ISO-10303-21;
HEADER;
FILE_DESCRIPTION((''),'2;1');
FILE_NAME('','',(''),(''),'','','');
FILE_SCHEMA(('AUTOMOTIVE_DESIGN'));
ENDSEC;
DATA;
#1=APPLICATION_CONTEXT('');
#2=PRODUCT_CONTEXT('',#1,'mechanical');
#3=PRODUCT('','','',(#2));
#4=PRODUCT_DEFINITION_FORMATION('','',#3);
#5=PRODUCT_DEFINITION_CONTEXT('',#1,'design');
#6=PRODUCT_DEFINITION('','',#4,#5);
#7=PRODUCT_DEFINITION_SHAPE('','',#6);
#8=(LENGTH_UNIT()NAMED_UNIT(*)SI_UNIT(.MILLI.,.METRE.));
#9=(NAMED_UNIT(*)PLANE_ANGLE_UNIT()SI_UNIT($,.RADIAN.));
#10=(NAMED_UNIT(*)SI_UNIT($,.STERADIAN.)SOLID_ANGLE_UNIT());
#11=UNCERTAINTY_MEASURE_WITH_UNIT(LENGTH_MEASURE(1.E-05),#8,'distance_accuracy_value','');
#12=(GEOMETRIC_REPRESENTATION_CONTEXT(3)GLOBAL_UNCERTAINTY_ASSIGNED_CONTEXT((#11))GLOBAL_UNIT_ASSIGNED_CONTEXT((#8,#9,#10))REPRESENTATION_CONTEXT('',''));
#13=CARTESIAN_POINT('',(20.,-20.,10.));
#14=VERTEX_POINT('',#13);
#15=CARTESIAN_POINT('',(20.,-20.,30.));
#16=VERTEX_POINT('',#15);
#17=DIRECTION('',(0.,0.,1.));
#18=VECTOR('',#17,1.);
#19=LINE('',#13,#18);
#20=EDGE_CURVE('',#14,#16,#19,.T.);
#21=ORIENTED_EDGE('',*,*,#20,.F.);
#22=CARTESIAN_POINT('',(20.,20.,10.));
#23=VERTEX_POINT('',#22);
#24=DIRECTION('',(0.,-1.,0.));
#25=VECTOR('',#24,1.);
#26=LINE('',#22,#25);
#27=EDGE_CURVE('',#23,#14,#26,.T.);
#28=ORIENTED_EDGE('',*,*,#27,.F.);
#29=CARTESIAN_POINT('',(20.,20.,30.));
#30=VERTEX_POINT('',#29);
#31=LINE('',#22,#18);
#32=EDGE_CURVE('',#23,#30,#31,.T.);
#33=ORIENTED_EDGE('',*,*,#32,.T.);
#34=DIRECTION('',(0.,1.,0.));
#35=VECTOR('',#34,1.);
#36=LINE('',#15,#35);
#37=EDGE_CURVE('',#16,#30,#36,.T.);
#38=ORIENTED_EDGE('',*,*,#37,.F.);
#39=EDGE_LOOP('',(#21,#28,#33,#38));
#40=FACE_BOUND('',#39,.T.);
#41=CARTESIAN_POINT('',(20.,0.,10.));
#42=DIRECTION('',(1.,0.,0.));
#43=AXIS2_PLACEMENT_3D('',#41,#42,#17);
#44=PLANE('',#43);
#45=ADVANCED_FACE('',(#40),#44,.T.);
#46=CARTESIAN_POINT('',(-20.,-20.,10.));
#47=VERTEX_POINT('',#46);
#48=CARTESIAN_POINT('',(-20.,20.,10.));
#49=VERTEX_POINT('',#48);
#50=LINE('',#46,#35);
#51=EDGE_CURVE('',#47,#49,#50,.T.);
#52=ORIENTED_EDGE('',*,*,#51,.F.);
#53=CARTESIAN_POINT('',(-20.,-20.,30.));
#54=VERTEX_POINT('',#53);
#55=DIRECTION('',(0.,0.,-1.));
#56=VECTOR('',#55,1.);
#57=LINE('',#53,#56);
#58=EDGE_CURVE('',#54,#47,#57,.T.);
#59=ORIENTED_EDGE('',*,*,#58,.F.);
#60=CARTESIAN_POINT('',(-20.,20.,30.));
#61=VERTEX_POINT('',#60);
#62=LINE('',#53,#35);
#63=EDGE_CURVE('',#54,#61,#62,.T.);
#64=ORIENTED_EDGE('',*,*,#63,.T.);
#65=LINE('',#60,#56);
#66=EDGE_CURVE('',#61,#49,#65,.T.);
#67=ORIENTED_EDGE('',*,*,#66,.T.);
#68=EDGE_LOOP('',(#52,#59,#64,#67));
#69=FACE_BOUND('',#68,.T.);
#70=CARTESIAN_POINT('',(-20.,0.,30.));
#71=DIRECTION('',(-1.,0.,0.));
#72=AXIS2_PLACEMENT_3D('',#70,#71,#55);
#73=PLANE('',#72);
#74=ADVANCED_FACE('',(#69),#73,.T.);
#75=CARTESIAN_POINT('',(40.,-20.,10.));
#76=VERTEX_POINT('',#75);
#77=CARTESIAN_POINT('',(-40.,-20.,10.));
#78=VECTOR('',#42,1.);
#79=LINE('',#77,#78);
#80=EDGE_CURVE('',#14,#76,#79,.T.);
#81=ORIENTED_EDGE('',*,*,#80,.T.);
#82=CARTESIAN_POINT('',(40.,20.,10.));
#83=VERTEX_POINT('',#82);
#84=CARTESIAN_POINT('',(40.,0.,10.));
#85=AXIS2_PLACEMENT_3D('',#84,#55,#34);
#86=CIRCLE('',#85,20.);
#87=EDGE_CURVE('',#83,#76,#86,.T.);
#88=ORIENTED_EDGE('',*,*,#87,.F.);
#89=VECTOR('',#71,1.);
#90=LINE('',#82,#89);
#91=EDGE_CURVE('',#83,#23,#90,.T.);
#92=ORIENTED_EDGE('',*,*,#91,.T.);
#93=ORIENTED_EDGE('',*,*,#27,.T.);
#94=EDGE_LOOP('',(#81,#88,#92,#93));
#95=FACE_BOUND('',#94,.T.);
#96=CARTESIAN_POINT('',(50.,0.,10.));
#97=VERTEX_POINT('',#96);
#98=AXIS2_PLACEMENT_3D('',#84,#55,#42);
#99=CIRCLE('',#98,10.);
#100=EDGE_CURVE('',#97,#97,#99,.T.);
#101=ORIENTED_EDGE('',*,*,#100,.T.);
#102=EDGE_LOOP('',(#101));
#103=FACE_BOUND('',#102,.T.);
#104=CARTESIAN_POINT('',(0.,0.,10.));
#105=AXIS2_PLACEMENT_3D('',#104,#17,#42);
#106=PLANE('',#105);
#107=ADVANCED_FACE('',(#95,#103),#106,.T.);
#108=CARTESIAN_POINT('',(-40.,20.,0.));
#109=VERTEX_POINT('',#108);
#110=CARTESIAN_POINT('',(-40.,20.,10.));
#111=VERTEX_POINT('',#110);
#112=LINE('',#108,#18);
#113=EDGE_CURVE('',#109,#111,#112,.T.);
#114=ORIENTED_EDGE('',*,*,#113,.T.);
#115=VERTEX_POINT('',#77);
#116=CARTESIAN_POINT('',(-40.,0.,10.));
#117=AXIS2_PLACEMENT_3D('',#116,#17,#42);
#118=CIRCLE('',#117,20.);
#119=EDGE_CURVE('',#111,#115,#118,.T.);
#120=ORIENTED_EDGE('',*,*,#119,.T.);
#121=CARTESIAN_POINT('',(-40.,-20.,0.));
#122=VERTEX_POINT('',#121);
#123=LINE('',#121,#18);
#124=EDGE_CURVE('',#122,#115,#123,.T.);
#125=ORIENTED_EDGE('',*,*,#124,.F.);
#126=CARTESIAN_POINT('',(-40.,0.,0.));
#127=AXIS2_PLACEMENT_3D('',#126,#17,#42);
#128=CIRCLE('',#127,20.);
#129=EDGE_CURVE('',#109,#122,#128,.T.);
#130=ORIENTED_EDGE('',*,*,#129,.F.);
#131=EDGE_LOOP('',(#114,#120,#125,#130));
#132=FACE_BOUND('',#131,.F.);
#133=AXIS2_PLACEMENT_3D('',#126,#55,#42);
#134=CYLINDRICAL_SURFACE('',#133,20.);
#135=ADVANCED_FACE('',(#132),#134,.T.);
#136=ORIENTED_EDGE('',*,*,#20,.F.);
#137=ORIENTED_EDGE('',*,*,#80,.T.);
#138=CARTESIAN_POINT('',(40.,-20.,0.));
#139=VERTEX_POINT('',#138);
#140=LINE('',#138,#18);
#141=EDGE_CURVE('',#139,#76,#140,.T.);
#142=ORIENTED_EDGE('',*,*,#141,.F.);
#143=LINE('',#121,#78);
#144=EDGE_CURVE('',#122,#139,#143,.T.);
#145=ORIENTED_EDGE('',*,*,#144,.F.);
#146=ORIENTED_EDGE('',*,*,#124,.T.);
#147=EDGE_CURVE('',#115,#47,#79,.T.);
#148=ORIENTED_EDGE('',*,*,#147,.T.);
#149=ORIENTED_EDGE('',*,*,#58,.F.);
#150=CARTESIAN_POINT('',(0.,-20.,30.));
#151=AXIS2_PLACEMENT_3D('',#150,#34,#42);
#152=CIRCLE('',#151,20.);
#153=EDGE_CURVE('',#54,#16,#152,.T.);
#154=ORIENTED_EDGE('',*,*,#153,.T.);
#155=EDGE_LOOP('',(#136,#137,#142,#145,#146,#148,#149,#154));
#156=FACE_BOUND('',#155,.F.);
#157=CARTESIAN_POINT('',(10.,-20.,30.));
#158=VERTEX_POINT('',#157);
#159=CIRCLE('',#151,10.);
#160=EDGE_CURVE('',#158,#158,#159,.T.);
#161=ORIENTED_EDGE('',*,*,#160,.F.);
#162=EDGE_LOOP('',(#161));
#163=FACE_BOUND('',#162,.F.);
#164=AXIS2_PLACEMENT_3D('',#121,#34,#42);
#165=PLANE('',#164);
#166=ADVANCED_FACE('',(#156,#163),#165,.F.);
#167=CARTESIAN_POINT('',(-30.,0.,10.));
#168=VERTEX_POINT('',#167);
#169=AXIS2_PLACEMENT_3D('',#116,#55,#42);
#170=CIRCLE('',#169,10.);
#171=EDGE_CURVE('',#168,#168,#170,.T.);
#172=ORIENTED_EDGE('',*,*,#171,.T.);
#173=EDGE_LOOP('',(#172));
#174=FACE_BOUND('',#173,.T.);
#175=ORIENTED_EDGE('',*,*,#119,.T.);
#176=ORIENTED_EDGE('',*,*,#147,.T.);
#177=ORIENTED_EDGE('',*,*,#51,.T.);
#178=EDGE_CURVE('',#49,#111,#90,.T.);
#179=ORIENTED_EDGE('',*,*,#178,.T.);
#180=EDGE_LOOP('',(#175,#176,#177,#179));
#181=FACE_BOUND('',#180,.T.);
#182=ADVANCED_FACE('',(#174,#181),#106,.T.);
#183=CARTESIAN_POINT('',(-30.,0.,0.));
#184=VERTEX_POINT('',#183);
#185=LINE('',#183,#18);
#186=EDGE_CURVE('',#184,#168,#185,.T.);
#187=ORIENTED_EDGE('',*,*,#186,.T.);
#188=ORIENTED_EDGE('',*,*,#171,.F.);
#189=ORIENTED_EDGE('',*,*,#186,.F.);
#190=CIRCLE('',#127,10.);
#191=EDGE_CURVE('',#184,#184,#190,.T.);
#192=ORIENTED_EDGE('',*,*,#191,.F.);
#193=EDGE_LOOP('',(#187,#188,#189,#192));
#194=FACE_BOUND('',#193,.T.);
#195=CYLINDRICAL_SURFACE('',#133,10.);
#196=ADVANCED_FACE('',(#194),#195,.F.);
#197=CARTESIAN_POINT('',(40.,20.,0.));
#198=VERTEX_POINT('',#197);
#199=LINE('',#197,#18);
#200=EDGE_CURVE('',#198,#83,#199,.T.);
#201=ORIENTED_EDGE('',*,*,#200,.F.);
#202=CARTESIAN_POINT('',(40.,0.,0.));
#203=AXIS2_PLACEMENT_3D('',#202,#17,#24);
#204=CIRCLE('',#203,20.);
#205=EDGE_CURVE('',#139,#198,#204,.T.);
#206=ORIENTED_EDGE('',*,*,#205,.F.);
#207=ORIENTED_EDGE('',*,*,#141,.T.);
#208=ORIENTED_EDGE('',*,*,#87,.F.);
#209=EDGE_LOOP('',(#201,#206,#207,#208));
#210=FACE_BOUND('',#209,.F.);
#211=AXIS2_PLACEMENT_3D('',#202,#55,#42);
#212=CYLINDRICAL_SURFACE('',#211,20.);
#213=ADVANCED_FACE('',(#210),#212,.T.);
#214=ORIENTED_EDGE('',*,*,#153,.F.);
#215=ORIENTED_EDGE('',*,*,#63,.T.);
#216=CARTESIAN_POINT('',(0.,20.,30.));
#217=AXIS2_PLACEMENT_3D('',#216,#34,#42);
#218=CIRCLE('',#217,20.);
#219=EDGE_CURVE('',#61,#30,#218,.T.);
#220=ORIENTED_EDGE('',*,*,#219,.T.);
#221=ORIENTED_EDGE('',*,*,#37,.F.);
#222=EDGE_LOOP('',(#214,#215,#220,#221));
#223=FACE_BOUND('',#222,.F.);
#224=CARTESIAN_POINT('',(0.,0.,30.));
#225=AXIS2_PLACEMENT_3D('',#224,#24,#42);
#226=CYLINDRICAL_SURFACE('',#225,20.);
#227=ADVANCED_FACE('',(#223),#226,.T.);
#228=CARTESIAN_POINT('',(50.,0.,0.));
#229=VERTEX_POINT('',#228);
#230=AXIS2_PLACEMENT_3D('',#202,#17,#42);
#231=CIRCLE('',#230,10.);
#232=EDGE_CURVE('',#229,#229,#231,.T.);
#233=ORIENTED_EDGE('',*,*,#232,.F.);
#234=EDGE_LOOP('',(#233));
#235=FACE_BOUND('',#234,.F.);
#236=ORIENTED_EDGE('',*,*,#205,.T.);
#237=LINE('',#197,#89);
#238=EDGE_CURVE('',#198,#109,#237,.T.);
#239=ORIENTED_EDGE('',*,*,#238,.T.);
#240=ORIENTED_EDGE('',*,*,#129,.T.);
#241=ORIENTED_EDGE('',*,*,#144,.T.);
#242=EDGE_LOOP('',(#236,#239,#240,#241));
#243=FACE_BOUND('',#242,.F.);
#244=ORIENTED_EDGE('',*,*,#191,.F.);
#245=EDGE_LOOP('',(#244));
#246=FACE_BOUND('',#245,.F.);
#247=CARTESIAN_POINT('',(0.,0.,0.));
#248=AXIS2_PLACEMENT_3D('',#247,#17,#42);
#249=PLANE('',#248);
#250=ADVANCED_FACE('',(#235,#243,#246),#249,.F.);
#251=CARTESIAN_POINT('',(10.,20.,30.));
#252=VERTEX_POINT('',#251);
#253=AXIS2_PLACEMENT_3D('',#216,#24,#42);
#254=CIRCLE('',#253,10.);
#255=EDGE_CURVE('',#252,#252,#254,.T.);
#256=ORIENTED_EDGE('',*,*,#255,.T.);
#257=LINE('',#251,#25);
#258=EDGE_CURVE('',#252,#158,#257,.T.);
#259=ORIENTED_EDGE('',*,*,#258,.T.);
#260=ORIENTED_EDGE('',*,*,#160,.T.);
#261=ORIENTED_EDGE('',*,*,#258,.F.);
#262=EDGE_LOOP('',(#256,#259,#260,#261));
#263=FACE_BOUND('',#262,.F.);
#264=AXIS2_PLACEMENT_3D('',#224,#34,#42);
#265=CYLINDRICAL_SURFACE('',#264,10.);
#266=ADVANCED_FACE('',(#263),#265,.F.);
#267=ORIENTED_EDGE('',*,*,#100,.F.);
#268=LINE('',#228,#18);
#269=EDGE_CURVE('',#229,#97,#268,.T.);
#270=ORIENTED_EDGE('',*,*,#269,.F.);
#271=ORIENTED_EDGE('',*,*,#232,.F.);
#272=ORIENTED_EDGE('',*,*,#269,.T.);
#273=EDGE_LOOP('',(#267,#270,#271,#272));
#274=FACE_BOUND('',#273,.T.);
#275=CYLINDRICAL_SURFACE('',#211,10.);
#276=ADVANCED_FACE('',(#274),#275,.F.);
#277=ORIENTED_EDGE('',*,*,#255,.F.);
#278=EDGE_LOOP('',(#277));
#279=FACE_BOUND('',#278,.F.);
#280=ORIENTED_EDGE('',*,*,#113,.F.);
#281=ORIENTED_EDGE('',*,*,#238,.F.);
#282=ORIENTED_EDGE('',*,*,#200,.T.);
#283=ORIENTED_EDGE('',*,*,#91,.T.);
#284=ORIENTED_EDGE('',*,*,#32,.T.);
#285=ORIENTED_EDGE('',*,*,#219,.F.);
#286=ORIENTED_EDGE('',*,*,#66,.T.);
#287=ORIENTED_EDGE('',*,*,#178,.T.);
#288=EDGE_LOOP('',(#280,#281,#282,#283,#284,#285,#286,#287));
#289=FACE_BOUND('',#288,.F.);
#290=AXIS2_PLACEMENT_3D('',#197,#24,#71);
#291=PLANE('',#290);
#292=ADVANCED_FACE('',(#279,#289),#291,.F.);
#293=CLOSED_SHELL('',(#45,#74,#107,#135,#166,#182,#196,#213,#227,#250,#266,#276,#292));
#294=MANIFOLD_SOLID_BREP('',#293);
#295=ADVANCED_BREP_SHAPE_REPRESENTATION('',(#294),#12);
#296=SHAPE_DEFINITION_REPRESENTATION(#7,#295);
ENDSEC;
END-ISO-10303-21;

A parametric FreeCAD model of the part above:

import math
import FreeCAD as App
import Part
import Sketcher

doc = App.newDocument("Part")
body = doc.addObject("PartDesign::Body", "Body")

sketch1 = body.newObject("Sketcher::SketchObject", "Sketch")
sketch1.AttachmentSupport = (doc.getObject("XY_Plane"), [""])
sketch1.MapMode = "FlatFace"
sketch1.addGeometry(Part.LineSegment(App.Vector(-40, -20, 0), App.Vector(40, -20, 0)), False)
sketch1.addGeometry(Part.ArcOfCircle(Part.Circle(App.Vector(40, 0, 0), App.Vector(0, 0, 1), 20), math.radians(-90), math.radians(90)), False)
sketch1.addGeometry(Part.LineSegment(App.Vector(40, 20, 0), App.Vector(-40, 20, 0)), False)
sketch1.addGeometry(Part.ArcOfCircle(Part.Circle(App.Vector(-40, 0, 0), App.Vector(0, 0, 1), 20), math.radians(90), math.radians(270)), False)
sketch1.addGeometry(Part.Circle(App.Vector(40, 0, 0), App.Vector(0, 0, 1), 10), False)
sketch1.addGeometry(Part.Circle(App.Vector(-40, 0, 0), App.Vector(0, 0, 1), 10), False)
sketch1.addConstraint(Sketcher.Constraint("Tangent", 0, 2, 1, 1))
sketch1.addConstraint(Sketcher.Constraint("Tangent", 1, 2, 2, 1))
sketch1.addConstraint(Sketcher.Constraint("Tangent", 2, 2, 3, 1))
sketch1.addConstraint(Sketcher.Constraint("Tangent", 3, 2, 0, 1))
sketch1.addConstraint(Sketcher.Constraint("Horizontal", 0))
sketch1.addConstraint(Sketcher.Constraint("Horizontal", 2))
sketch1.addConstraint(Sketcher.Constraint("Coincident", 4, 3, 1, 3))
sketch1.addConstraint(Sketcher.Constraint("Coincident", 5, 3, 3, 3))
sketch1.addConstraint(Sketcher.Constraint("Equal", 4, 5))
sketch1.addConstraint(Sketcher.Constraint("Symmetric", 1, 3, 3, 3, -1, 1))
sketch1.addConstraint(Sketcher.Constraint("Diameter", 4, 20.0))
sketch1.addConstraint(Sketcher.Constraint("Radius", 1, 20.0))
sketch1.addConstraint(Sketcher.Constraint("DistanceX", 0, 1, 0, 2, 80.0))
pad1 = body.newObject("PartDesign::Pad", "Pad")
pad1.Profile = sketch1
pad1.Length = 10

sketch2 = body.newObject("Sketcher::SketchObject", "Sketch001")
sketch2.AttachmentSupport = (doc.getObject("XZ_Plane"), [""])
sketch2.MapMode = "FlatFace"
sketch2.addGeometry(Part.LineSegment(App.Vector(-20, 10, 0), App.Vector(-20, 30, 0)), False)
sketch2.addGeometry(Part.ArcOfCircle(Part.Circle(App.Vector(0, 30, 0), App.Vector(0, 0, 1), 20), math.radians(0), math.radians(180)), False)
sketch2.addGeometry(Part.LineSegment(App.Vector(20, 30, 0), App.Vector(20, 10, 0)), False)
sketch2.addGeometry(Part.LineSegment(App.Vector(20, 10, 0), App.Vector(-20, 10, 0)), False)
sketch2.addGeometry(Part.Circle(App.Vector(0, 30, 0), App.Vector(0, 0, 1), 10), False)
sketch2.addConstraint(Sketcher.Constraint("Tangent", 0, 2, 1, 2))
sketch2.addConstraint(Sketcher.Constraint("Tangent", 1, 1, 2, 1))
sketch2.addConstraint(Sketcher.Constraint("Coincident", 2, 2, 3, 1))
sketch2.addConstraint(Sketcher.Constraint("Coincident", 3, 2, 0, 1))
sketch2.addConstraint(Sketcher.Constraint("Vertical", 0))
sketch2.addConstraint(Sketcher.Constraint("Vertical", 2))
sketch2.addConstraint(Sketcher.Constraint("Horizontal", 3))
sketch2.addConstraint(Sketcher.Constraint("Coincident", 4, 3, 1, 3))
sketch2.addConstraint(Sketcher.Constraint("PointOnObject", 1, 3, -2))
sketch2.addConstraint(Sketcher.Constraint("Diameter", 4, 20.0))
sketch2.addConstraint(Sketcher.Constraint("Radius", 1, 20.0))
sketch2.addConstraint(Sketcher.Constraint("DistanceY", 0, 1, 0, 2, 20.0))
sketch2.addConstraint(Sketcher.Constraint("DistanceY", -1, 1, 1, 3, 30.0))
pad2 = body.newObject("PartDesign::Pad", "Pad001")
pad2.Profile = sketch2
pad2.Length = 40
pad2.Midplane = True

doc.recompute()
